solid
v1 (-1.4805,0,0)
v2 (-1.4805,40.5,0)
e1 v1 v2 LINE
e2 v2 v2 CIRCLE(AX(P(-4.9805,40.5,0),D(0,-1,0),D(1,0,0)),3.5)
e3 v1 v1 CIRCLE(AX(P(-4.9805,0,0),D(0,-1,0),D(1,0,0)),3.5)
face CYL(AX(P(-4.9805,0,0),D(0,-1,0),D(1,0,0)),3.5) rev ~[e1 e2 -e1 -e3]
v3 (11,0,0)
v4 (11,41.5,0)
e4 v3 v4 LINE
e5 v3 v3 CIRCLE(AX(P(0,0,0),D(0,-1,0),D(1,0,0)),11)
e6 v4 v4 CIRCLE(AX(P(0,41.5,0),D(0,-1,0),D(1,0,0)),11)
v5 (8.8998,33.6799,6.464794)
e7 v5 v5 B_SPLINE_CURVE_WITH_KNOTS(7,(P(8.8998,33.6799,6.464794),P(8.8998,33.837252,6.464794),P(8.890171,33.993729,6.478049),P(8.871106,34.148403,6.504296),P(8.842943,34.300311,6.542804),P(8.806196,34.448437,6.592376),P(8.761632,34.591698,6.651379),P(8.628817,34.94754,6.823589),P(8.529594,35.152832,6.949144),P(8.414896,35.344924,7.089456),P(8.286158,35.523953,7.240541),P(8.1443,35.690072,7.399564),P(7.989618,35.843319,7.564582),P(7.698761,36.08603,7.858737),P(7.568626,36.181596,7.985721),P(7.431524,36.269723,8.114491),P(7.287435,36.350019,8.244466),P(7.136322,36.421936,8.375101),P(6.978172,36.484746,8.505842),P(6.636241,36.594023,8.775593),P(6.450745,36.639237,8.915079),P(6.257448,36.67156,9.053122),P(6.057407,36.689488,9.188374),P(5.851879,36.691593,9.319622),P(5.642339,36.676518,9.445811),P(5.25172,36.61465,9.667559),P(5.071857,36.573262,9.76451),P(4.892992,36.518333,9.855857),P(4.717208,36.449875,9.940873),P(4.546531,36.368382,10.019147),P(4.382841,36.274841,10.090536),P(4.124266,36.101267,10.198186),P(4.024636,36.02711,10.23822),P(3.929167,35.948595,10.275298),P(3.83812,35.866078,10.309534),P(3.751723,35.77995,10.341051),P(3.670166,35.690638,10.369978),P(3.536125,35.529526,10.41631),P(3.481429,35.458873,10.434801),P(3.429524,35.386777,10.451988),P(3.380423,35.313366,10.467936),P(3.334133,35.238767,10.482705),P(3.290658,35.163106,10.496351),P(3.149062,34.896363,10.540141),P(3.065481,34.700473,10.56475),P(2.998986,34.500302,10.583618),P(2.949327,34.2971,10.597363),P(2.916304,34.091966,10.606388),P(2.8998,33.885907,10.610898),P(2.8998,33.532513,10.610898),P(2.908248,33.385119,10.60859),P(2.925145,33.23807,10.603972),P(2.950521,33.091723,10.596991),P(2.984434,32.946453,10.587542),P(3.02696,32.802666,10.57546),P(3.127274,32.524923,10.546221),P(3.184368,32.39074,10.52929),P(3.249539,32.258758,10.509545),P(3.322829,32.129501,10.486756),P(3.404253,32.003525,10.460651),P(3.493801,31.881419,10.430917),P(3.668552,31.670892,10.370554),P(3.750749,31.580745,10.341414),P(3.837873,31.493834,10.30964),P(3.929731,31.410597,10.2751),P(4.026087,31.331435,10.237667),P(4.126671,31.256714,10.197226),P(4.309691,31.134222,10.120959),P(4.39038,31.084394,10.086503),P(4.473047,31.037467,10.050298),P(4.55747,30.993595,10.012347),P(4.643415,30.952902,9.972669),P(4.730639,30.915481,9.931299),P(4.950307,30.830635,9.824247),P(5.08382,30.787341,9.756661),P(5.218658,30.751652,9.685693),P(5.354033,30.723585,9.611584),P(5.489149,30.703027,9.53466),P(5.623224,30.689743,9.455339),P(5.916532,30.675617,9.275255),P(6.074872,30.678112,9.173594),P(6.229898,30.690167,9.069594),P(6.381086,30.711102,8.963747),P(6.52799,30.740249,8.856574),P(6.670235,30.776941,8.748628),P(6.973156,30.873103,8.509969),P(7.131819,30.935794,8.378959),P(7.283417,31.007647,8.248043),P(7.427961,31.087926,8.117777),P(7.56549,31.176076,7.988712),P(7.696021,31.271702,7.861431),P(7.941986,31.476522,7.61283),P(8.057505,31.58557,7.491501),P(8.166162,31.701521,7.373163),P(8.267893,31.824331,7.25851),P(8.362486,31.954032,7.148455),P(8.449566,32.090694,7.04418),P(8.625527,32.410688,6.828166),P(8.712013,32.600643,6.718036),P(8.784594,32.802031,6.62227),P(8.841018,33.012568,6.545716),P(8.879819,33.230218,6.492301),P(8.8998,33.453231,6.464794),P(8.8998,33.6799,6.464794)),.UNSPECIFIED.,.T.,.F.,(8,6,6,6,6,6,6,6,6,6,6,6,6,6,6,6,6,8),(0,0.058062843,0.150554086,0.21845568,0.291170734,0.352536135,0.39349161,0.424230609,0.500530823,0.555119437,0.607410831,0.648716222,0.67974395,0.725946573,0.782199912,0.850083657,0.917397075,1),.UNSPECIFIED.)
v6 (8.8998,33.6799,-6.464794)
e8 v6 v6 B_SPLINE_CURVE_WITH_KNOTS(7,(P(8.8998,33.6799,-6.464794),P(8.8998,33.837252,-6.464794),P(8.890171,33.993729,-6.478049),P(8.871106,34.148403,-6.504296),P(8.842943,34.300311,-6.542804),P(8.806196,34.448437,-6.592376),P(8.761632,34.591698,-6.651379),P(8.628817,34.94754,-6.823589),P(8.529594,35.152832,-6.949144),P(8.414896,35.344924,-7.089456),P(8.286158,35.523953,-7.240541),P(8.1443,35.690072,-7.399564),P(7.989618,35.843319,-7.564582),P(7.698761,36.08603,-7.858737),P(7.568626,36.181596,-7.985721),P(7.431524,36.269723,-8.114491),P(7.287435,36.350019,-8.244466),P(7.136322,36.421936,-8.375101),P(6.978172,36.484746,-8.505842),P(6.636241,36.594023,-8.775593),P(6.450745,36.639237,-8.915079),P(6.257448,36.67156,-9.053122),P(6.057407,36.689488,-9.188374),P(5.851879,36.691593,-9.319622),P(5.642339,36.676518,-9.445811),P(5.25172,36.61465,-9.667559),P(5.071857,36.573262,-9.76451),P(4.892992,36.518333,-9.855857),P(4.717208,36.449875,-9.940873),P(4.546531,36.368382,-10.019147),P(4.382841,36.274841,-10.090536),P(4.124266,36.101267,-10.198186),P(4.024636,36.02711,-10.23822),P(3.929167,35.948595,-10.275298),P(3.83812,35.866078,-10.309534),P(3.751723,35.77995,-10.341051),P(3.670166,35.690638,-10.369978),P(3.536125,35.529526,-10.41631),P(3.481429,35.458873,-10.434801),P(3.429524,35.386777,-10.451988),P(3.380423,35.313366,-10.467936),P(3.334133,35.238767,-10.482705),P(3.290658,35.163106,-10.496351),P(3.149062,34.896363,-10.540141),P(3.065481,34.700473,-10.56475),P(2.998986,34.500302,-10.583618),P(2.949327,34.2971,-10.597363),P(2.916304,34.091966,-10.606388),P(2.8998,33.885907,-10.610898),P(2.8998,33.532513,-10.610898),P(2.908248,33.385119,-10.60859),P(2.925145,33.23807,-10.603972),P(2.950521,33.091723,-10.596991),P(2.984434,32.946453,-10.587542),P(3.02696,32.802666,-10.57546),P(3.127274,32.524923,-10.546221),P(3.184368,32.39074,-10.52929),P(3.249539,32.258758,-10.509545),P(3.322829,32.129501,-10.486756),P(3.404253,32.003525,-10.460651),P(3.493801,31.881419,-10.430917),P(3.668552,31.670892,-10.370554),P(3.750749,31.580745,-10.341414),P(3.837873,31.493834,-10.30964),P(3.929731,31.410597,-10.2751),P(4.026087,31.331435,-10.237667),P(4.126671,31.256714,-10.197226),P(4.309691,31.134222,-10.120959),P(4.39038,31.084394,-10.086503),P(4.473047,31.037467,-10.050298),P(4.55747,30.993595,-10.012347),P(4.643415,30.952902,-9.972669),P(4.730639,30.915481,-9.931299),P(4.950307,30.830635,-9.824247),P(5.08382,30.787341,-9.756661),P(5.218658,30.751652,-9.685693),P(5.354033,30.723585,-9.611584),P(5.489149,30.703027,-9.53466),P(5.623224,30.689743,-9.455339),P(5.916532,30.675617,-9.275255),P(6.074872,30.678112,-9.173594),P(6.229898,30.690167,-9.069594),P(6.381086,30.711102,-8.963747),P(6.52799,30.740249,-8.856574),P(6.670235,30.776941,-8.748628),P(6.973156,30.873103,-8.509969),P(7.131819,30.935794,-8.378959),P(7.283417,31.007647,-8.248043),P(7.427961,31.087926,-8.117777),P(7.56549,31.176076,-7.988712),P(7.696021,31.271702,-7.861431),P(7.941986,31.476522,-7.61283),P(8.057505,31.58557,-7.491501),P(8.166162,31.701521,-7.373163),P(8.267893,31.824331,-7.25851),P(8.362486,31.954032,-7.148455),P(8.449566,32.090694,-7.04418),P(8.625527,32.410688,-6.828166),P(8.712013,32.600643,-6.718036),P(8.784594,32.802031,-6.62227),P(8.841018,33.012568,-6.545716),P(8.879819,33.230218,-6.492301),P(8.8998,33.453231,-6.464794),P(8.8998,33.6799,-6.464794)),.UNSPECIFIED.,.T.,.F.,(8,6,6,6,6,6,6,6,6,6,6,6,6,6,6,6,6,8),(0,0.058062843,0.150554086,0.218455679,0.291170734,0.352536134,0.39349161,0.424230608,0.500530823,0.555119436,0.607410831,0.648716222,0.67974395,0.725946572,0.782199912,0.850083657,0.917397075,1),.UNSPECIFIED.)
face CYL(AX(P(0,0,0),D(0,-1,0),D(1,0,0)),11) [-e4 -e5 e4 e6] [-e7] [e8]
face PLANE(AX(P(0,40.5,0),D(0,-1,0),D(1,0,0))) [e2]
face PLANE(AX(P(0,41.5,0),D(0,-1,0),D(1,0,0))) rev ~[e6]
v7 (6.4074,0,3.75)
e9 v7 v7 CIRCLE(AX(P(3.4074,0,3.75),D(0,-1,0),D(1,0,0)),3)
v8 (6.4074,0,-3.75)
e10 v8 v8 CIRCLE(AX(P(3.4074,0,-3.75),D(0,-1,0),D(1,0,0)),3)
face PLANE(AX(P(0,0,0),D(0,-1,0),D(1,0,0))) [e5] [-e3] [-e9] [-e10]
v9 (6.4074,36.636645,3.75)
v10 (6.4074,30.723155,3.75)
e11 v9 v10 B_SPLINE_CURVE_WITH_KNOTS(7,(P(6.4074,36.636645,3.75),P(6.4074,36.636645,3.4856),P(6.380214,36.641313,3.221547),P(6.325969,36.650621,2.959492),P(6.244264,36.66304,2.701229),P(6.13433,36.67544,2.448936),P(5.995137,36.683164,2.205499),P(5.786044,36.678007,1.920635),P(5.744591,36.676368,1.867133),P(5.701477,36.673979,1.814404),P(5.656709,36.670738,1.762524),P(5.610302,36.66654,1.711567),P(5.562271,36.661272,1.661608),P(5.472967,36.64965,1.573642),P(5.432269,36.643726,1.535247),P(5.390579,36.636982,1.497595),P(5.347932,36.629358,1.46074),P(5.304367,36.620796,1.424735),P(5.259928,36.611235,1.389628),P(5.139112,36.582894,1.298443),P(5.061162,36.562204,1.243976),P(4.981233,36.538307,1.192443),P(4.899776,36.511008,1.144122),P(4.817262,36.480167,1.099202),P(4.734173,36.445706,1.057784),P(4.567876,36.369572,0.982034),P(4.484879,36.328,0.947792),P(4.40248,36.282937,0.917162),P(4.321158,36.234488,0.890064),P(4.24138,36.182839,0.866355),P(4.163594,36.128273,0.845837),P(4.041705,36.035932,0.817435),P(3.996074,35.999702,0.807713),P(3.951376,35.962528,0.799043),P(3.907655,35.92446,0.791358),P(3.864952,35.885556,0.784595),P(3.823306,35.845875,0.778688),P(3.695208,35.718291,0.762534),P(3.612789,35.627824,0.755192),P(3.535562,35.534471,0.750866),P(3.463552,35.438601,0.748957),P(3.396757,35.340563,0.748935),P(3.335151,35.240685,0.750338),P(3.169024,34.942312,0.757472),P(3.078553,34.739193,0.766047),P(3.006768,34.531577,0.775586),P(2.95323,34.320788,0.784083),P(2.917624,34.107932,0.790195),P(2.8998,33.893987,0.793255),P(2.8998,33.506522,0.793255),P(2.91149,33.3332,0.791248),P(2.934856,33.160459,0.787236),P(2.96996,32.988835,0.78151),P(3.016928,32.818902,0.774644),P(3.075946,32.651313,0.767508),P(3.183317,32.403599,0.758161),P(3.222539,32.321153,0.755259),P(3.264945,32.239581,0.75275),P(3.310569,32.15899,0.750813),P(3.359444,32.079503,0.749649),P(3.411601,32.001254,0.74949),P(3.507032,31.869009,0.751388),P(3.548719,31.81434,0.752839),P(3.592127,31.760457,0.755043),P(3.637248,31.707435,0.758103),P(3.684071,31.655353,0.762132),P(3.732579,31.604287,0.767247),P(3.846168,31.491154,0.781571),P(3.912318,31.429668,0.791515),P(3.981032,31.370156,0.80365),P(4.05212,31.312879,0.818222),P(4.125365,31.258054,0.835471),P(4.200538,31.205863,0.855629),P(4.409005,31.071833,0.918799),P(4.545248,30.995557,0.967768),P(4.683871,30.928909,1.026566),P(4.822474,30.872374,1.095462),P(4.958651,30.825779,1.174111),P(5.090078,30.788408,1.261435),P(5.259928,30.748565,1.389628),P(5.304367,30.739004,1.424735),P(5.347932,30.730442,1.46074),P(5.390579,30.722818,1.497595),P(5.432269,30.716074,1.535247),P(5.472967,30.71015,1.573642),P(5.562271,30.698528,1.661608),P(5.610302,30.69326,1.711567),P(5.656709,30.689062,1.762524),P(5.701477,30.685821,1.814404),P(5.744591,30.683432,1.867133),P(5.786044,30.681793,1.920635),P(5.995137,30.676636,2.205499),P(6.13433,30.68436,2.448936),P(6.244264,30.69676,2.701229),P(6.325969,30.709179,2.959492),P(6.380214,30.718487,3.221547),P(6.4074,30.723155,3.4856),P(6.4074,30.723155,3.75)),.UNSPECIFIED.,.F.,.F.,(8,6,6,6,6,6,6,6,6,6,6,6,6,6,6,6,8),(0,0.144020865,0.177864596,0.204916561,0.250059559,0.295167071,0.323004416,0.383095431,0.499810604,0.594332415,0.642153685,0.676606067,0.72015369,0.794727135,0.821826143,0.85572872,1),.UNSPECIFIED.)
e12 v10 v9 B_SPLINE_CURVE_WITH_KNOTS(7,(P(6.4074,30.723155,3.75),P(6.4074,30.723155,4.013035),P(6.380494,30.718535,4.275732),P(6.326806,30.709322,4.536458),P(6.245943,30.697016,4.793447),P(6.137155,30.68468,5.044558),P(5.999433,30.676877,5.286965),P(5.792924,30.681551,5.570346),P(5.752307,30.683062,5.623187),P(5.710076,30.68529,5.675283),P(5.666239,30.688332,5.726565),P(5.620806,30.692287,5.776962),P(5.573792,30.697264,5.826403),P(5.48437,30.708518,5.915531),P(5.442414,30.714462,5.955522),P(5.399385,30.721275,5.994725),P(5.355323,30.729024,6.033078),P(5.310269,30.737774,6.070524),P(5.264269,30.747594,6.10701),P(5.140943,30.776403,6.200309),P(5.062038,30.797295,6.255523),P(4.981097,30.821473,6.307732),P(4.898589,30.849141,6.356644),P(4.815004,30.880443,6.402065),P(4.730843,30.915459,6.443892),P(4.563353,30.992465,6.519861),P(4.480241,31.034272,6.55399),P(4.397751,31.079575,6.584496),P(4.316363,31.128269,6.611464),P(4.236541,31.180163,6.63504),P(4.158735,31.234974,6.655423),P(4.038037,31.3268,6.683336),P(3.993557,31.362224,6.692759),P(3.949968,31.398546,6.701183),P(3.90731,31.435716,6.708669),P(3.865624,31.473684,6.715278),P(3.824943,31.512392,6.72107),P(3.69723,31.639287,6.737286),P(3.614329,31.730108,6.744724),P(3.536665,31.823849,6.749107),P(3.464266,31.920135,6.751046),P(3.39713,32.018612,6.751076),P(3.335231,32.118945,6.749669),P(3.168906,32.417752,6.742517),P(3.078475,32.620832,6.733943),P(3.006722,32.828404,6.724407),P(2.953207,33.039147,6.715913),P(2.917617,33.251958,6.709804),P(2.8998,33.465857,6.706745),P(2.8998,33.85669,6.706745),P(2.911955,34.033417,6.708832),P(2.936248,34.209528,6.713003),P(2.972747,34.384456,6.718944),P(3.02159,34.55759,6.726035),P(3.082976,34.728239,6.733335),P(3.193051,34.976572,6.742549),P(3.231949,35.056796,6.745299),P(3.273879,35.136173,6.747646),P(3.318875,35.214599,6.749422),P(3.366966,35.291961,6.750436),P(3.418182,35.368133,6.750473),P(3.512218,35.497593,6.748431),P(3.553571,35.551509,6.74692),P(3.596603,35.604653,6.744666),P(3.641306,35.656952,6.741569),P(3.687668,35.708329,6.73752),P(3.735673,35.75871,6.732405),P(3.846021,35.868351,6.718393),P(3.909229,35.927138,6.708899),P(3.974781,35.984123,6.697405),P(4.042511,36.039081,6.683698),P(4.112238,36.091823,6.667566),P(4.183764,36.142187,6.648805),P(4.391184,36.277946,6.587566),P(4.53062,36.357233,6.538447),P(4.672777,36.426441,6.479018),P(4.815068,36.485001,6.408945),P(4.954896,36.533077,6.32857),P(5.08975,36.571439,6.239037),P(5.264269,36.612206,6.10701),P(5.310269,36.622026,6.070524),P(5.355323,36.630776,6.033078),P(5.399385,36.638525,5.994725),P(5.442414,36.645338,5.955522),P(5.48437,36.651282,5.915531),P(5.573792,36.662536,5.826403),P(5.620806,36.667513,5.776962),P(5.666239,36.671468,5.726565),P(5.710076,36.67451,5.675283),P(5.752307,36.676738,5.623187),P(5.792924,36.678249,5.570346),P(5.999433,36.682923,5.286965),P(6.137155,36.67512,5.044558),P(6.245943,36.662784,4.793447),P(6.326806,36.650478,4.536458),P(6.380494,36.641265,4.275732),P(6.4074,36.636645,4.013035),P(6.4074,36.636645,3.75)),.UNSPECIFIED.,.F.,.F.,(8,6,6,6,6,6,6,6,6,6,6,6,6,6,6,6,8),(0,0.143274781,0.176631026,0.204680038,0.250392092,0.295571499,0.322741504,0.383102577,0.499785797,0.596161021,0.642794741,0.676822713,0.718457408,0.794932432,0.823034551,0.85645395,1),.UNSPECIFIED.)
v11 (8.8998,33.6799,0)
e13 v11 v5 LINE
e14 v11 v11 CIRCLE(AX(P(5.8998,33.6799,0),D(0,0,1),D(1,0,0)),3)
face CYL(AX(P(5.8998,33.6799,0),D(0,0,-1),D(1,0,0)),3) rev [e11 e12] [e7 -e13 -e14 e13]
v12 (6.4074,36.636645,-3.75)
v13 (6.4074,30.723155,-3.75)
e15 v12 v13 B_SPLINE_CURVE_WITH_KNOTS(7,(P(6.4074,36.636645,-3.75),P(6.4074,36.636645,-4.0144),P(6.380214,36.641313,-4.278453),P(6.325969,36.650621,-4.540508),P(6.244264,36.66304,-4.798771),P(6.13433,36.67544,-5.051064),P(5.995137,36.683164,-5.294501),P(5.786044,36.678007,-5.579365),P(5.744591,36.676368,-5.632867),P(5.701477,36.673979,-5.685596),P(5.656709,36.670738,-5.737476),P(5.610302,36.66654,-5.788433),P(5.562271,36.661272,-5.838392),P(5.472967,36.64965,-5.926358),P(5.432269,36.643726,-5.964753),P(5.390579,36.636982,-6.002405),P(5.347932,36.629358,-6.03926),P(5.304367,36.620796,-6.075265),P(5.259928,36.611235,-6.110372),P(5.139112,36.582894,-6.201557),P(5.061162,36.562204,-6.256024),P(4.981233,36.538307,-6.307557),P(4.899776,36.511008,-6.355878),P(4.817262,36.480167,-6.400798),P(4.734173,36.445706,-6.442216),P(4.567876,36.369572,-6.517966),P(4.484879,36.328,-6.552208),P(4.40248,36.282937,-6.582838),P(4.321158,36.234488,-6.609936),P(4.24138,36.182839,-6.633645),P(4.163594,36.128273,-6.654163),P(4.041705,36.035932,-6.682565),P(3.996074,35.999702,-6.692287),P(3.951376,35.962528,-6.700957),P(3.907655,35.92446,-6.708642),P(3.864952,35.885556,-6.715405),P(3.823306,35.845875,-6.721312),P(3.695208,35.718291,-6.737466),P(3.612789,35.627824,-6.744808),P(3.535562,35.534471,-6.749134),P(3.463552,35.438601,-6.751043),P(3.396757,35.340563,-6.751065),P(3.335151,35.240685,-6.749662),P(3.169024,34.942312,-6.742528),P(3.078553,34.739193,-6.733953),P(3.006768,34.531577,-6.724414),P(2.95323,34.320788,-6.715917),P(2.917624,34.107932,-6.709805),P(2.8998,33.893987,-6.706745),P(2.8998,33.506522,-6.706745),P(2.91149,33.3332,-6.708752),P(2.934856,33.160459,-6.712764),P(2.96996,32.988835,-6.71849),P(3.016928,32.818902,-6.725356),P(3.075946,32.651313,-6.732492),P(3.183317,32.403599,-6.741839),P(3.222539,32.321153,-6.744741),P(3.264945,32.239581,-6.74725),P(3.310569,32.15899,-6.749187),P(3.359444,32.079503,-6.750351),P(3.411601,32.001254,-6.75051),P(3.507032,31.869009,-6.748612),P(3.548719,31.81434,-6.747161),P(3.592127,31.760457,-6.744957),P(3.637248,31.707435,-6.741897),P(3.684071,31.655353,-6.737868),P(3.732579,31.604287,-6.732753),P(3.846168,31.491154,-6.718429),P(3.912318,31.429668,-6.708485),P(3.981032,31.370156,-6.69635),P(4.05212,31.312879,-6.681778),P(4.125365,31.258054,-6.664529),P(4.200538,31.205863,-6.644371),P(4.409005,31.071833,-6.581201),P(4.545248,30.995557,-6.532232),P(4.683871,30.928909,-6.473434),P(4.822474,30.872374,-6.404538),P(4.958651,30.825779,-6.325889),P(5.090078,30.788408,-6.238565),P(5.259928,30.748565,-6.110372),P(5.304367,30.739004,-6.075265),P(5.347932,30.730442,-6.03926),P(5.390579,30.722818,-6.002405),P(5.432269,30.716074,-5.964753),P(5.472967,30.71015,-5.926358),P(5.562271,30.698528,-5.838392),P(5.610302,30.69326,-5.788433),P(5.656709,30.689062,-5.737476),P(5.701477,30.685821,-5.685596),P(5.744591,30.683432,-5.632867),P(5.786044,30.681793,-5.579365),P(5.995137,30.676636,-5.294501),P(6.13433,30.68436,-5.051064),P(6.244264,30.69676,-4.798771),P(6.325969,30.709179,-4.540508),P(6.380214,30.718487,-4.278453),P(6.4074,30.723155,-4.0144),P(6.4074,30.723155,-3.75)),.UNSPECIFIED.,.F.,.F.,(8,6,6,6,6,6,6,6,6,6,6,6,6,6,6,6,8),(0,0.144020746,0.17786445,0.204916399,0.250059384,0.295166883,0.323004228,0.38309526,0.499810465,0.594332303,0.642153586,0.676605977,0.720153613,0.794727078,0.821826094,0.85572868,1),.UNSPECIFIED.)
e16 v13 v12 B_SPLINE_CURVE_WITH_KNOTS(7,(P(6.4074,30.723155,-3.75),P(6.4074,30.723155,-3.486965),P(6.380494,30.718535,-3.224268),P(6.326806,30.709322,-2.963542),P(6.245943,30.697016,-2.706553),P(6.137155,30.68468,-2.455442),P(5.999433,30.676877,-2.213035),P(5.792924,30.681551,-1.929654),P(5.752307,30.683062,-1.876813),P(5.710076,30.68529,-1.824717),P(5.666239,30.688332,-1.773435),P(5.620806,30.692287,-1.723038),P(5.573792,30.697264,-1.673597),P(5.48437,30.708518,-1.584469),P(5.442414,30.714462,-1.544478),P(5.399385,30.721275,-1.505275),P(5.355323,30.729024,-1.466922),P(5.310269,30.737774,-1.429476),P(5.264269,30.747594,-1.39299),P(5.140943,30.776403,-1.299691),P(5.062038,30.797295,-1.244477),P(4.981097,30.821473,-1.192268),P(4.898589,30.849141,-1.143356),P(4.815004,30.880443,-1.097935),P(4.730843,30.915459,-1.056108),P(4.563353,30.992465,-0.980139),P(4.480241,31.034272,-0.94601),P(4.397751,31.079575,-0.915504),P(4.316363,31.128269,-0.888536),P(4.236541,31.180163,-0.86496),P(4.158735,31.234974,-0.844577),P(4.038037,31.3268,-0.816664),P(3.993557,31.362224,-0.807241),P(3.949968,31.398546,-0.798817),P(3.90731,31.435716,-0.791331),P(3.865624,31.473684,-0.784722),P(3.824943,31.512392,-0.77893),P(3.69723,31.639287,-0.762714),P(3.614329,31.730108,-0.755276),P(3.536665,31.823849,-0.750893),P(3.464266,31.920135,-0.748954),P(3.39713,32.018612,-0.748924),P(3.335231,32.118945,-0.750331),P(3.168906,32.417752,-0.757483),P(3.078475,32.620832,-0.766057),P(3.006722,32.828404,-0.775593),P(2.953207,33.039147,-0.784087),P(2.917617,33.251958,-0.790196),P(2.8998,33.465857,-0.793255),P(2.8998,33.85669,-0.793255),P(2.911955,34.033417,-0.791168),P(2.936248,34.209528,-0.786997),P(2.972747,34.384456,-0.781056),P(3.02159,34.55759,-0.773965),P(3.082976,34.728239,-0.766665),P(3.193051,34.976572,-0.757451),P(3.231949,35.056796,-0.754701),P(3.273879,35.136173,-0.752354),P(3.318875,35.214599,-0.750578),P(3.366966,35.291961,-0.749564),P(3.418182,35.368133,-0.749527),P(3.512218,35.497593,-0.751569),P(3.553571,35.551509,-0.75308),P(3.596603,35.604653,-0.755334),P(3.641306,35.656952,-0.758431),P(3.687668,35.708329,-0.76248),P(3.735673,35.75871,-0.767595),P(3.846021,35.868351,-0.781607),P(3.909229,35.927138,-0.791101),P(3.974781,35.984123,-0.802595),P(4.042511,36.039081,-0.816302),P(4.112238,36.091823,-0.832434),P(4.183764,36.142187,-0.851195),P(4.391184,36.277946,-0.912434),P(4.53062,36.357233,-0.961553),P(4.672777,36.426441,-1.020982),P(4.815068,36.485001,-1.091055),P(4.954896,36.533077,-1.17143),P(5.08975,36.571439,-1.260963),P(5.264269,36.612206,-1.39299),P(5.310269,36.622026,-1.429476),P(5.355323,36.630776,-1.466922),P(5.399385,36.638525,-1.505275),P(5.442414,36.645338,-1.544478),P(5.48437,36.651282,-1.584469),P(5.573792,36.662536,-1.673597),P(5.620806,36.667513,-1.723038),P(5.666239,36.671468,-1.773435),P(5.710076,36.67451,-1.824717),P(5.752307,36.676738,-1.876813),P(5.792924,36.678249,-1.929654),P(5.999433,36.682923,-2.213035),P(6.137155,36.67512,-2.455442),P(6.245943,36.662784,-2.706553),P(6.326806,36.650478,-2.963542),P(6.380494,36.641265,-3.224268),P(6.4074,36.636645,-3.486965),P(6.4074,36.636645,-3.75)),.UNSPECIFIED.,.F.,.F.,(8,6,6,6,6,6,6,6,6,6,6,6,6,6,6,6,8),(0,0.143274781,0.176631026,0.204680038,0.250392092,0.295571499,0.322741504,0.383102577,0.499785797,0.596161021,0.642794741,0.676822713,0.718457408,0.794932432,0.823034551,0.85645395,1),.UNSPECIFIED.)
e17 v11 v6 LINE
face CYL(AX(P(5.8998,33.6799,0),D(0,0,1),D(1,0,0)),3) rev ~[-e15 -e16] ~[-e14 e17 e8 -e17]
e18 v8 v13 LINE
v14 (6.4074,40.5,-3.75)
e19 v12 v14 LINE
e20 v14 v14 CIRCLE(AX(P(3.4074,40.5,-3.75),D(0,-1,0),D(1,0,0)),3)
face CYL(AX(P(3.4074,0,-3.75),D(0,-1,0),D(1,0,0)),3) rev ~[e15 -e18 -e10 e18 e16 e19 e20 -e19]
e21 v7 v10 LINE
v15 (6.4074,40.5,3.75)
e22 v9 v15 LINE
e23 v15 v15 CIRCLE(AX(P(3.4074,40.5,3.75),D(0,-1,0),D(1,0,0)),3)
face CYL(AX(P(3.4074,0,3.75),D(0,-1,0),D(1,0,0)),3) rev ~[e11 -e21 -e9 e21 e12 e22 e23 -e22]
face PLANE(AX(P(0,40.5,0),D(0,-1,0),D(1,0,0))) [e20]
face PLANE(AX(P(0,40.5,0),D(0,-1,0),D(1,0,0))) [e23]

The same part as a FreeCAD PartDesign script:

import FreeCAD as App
import Part
import Sketcher
Q = App.Units.Quantity

doc = App.newDocument("Part")
body = doc.addObject("PartDesign::Body", "Body")

sketch1 = body.newObject("Sketcher::SketchObject", "Sketch")
sketch1.AttachmentSupport = (doc.getObject("XZ_Plane"), [""])
sketch1.MapMode = "FlatFace"
sketch1.addGeometry(Part.Circle(App.Vector(0, 0, 0), App.Vector(0, 0, 1), 11), False)
sketch1.addConstraint([
    Sketcher.Constraint("Coincident", 0, 3, -1, 1),
    Sketcher.Constraint("Diameter", 0, Q("21.9 mm")),
])
pad1 = body.newObject("PartDesign::Pad", "Pad")
pad1.Profile = sketch1
pad1.Length = 146.5
pad1.Reversed = True

sketch2 = body.newObject("Sketcher::SketchObject", "Sketch001")
sketch2.AttachmentSupport = (doc.getObject("XZ_Plane"), [""])
sketch2.MapMode = "FlatFace"
sketch2.addGeometry([
    Part.Circle(App.Vector(3.4, 3.8, 0), App.Vector(0, 0, 1), 3),
    Part.Circle(App.Vector(3.4, -3.8, 0), App.Vector(0, 0, 1), 3),
    Part.Circle(App.Vector(-5, 0, 0), App.Vector(0, 0, 1), 3.5),
], False)
sketch2.addConstraint([
    Sketcher.Constraint("Equal", 0, 1),
    Sketcher.Constraint("Symmetric", 0, 3, 1, 3, -1),
    Sketcher.Constraint("PointOnObject", 2, 3, -1),
    Sketcher.Constraint("Diameter", 0, Q("6 mm")),
    Sketcher.Constraint("Diameter", 2, Q("7 mm")),
    Sketcher.Constraint("DistanceY", 1, 3, 0, 3, Q("7.5 mm")),
    Sketcher.Constraint("DistanceX", 2, 3, 0, 3, Q("8.388 mm")),
    Sketcher.Constraint("DistanceX", -1, 1, 0, 3, Q("3.4074 mm")),
])
pocket1 = body.newObject("PartDesign::Pocket", "Pocket")
pocket1.Profile = sketch2
pocket1.Length = 40.5

sketch3 = body.newObject("Sketcher::SketchObject", "Sketch002")
sketch3.AttachmentSupport = (doc.getObject("XZ_Plane"), [""])
sketch3.MapMode = "FlatFace"
sketch3.addGeometry([
    Part.Circle(App.Vector(0, 0, 0), App.Vector(0, 0, 1), 11),
    Part.Circle(App.Vector(0, 0, 0), App.Vector(0, 0, 1), 11),
], False)
sketch3.addConstraint([
    Sketcher.Constraint("Coincident", 0, 3, -1, 1),
    Sketcher.Constraint("Coincident", 1, 3, -1, 1),
    Sketcher.Constraint("Diameter", 0, Q("22 mm")),
    Sketcher.Constraint("Diameter", 1, Q("21.9 mm")),
])
pad2 = body.newObject("PartDesign::Pad", "Pad001")
pad2.Profile = sketch3
pad2.Length = 41.5
pad2.Reversed = True

sketch4 = body.newObject("Sketcher::SketchObject", "Sketch003")
sketch4.AttachmentSupport = (doc.getObject("XZ_Plane"), [""])
sketch4.MapMode = "FlatFace"
sketch4.AttachmentOffset = App.Placement(App.Vector(0, 0, -146.5), App.Rotation())
sketch4.addGeometry(Part.Circle(App.Vector(0, 0, 0), App.Vector(0, 0, 1), 11), False)
sketch4.addConstraint([
    Sketcher.Constraint("Coincident", 0, 3, -1, 1),
    Sketcher.Constraint("Diameter", 0, Q("21.9 mm")),
])
pocket2 = body.newObject("PartDesign::Pocket", "Pocket001")
pocket2.Profile = sketch4
pocket2.Length = 105
pocket2.Reversed = True

sketch5 = body.newObject("Sketcher::SketchObject", "Sketch004")
sketch5.AttachmentSupport = (doc.getObject("XY_Plane"), [""])
sketch5.MapMode = "FlatFace"
sketch5.addGeometry(Part.Circle(App.Vector(5.9, 33.7, 0), App.Vector(0, 0, 1), 3), False)
sketch5.addConstraint([
    Sketcher.Constraint("Diameter", 0, Q("6 mm")),
    Sketcher.Constraint("DistanceY", -1, 1, 0, 3, Q("33.68 mm")),
    Sketcher.Constraint("DistanceX", -1, 1, 0, 3, Q("5.8998 mm")),
])
pocket3 = body.newObject("PartDesign::Pocket", "Pocket002")
pocket3.Profile = sketch5
pocket3.Length = 22
pocket3.Midplane = True

doc.recompute()
